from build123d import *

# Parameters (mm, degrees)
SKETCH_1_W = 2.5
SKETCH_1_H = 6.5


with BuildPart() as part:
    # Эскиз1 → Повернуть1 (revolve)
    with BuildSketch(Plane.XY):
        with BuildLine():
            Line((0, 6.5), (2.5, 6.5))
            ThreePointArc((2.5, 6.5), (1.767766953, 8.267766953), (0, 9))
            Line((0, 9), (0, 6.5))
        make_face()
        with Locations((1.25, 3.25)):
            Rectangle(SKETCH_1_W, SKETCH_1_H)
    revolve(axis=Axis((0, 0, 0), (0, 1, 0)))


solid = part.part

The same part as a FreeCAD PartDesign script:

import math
import FreeCAD as App
import Part
import Sketcher
Q = App.Units.Quantity

doc = App.newDocument("Part")
body = doc.addObject("PartDesign::Body", "Body")

# Sketch on XY plane
sketch1 = doc.addObject("Sketcher::SketchObject", "Sketch")
body.addObject(sketch1)
sketch1.AttachmentSupport = (doc.XY_Plane, [""])
sketch1.MapMode = "FlatFace"
sketch1.addGeometry(Part.ArcOfCircle(Part.Circle(App.Vector(0, 6.5, 0), App.Vector(0, 0, 1), 2.5), math.radians(0), math.radians(90)), False)
sketch1.addGeometry(Part.LineSegment(App.Vector(0, 9, 0), App.Vector(0, 0, 0)), False)
sketch1.addGeometry(Part.LineSegment(App.Vector(0, 0, 0), App.Vector(2.5, 0, 0)), False)
sketch1.addGeometry(Part.LineSegment(App.Vector(2.5, 0, 0), App.Vector(2.5, 6.5, 0)), False)
sketch1.addConstraint(Sketcher.Constraint("Coincident", 0, 2, 1, 1))
sketch1.addConstraint(Sketcher.Constraint("Coincident", 1, 2, 2, 1))
sketch1.addConstraint(Sketcher.Constraint("Coincident", 2, 2, 3, 1))
sketch1.addConstraint(Sketcher.Constraint("Tangent", 3, 2, 0, 1))
sketch1.addConstraint(Sketcher.Constraint("Vertical", 1))
sketch1.addConstraint(Sketcher.Constraint("Horizontal", 2))
sketch1.addConstraint(Sketcher.Constraint("Vertical", 3))
sketch1.addConstraint(Sketcher.Constraint("Coincident", 1, 2, -1, 1))
sketch1.addConstraint(Sketcher.Constraint("PointOnObject", 0, 3, -2))
sketch1.addConstraint(Sketcher.Constraint("Radius", 0, Q("2.5 mm")))
sketch1.addConstraint(Sketcher.Constraint("DistanceY", 1, 2, 1, 1, Q("9 mm")))
revolution = doc.addObject("PartDesign::Revolution", "Revolution")
body.addObject(revolution)
revolution.Profile = sketch1
revolution.ReferenceAxis = (sketch1, ["V_Axis"])
revolution.Angle = 360

doc.recompute()
